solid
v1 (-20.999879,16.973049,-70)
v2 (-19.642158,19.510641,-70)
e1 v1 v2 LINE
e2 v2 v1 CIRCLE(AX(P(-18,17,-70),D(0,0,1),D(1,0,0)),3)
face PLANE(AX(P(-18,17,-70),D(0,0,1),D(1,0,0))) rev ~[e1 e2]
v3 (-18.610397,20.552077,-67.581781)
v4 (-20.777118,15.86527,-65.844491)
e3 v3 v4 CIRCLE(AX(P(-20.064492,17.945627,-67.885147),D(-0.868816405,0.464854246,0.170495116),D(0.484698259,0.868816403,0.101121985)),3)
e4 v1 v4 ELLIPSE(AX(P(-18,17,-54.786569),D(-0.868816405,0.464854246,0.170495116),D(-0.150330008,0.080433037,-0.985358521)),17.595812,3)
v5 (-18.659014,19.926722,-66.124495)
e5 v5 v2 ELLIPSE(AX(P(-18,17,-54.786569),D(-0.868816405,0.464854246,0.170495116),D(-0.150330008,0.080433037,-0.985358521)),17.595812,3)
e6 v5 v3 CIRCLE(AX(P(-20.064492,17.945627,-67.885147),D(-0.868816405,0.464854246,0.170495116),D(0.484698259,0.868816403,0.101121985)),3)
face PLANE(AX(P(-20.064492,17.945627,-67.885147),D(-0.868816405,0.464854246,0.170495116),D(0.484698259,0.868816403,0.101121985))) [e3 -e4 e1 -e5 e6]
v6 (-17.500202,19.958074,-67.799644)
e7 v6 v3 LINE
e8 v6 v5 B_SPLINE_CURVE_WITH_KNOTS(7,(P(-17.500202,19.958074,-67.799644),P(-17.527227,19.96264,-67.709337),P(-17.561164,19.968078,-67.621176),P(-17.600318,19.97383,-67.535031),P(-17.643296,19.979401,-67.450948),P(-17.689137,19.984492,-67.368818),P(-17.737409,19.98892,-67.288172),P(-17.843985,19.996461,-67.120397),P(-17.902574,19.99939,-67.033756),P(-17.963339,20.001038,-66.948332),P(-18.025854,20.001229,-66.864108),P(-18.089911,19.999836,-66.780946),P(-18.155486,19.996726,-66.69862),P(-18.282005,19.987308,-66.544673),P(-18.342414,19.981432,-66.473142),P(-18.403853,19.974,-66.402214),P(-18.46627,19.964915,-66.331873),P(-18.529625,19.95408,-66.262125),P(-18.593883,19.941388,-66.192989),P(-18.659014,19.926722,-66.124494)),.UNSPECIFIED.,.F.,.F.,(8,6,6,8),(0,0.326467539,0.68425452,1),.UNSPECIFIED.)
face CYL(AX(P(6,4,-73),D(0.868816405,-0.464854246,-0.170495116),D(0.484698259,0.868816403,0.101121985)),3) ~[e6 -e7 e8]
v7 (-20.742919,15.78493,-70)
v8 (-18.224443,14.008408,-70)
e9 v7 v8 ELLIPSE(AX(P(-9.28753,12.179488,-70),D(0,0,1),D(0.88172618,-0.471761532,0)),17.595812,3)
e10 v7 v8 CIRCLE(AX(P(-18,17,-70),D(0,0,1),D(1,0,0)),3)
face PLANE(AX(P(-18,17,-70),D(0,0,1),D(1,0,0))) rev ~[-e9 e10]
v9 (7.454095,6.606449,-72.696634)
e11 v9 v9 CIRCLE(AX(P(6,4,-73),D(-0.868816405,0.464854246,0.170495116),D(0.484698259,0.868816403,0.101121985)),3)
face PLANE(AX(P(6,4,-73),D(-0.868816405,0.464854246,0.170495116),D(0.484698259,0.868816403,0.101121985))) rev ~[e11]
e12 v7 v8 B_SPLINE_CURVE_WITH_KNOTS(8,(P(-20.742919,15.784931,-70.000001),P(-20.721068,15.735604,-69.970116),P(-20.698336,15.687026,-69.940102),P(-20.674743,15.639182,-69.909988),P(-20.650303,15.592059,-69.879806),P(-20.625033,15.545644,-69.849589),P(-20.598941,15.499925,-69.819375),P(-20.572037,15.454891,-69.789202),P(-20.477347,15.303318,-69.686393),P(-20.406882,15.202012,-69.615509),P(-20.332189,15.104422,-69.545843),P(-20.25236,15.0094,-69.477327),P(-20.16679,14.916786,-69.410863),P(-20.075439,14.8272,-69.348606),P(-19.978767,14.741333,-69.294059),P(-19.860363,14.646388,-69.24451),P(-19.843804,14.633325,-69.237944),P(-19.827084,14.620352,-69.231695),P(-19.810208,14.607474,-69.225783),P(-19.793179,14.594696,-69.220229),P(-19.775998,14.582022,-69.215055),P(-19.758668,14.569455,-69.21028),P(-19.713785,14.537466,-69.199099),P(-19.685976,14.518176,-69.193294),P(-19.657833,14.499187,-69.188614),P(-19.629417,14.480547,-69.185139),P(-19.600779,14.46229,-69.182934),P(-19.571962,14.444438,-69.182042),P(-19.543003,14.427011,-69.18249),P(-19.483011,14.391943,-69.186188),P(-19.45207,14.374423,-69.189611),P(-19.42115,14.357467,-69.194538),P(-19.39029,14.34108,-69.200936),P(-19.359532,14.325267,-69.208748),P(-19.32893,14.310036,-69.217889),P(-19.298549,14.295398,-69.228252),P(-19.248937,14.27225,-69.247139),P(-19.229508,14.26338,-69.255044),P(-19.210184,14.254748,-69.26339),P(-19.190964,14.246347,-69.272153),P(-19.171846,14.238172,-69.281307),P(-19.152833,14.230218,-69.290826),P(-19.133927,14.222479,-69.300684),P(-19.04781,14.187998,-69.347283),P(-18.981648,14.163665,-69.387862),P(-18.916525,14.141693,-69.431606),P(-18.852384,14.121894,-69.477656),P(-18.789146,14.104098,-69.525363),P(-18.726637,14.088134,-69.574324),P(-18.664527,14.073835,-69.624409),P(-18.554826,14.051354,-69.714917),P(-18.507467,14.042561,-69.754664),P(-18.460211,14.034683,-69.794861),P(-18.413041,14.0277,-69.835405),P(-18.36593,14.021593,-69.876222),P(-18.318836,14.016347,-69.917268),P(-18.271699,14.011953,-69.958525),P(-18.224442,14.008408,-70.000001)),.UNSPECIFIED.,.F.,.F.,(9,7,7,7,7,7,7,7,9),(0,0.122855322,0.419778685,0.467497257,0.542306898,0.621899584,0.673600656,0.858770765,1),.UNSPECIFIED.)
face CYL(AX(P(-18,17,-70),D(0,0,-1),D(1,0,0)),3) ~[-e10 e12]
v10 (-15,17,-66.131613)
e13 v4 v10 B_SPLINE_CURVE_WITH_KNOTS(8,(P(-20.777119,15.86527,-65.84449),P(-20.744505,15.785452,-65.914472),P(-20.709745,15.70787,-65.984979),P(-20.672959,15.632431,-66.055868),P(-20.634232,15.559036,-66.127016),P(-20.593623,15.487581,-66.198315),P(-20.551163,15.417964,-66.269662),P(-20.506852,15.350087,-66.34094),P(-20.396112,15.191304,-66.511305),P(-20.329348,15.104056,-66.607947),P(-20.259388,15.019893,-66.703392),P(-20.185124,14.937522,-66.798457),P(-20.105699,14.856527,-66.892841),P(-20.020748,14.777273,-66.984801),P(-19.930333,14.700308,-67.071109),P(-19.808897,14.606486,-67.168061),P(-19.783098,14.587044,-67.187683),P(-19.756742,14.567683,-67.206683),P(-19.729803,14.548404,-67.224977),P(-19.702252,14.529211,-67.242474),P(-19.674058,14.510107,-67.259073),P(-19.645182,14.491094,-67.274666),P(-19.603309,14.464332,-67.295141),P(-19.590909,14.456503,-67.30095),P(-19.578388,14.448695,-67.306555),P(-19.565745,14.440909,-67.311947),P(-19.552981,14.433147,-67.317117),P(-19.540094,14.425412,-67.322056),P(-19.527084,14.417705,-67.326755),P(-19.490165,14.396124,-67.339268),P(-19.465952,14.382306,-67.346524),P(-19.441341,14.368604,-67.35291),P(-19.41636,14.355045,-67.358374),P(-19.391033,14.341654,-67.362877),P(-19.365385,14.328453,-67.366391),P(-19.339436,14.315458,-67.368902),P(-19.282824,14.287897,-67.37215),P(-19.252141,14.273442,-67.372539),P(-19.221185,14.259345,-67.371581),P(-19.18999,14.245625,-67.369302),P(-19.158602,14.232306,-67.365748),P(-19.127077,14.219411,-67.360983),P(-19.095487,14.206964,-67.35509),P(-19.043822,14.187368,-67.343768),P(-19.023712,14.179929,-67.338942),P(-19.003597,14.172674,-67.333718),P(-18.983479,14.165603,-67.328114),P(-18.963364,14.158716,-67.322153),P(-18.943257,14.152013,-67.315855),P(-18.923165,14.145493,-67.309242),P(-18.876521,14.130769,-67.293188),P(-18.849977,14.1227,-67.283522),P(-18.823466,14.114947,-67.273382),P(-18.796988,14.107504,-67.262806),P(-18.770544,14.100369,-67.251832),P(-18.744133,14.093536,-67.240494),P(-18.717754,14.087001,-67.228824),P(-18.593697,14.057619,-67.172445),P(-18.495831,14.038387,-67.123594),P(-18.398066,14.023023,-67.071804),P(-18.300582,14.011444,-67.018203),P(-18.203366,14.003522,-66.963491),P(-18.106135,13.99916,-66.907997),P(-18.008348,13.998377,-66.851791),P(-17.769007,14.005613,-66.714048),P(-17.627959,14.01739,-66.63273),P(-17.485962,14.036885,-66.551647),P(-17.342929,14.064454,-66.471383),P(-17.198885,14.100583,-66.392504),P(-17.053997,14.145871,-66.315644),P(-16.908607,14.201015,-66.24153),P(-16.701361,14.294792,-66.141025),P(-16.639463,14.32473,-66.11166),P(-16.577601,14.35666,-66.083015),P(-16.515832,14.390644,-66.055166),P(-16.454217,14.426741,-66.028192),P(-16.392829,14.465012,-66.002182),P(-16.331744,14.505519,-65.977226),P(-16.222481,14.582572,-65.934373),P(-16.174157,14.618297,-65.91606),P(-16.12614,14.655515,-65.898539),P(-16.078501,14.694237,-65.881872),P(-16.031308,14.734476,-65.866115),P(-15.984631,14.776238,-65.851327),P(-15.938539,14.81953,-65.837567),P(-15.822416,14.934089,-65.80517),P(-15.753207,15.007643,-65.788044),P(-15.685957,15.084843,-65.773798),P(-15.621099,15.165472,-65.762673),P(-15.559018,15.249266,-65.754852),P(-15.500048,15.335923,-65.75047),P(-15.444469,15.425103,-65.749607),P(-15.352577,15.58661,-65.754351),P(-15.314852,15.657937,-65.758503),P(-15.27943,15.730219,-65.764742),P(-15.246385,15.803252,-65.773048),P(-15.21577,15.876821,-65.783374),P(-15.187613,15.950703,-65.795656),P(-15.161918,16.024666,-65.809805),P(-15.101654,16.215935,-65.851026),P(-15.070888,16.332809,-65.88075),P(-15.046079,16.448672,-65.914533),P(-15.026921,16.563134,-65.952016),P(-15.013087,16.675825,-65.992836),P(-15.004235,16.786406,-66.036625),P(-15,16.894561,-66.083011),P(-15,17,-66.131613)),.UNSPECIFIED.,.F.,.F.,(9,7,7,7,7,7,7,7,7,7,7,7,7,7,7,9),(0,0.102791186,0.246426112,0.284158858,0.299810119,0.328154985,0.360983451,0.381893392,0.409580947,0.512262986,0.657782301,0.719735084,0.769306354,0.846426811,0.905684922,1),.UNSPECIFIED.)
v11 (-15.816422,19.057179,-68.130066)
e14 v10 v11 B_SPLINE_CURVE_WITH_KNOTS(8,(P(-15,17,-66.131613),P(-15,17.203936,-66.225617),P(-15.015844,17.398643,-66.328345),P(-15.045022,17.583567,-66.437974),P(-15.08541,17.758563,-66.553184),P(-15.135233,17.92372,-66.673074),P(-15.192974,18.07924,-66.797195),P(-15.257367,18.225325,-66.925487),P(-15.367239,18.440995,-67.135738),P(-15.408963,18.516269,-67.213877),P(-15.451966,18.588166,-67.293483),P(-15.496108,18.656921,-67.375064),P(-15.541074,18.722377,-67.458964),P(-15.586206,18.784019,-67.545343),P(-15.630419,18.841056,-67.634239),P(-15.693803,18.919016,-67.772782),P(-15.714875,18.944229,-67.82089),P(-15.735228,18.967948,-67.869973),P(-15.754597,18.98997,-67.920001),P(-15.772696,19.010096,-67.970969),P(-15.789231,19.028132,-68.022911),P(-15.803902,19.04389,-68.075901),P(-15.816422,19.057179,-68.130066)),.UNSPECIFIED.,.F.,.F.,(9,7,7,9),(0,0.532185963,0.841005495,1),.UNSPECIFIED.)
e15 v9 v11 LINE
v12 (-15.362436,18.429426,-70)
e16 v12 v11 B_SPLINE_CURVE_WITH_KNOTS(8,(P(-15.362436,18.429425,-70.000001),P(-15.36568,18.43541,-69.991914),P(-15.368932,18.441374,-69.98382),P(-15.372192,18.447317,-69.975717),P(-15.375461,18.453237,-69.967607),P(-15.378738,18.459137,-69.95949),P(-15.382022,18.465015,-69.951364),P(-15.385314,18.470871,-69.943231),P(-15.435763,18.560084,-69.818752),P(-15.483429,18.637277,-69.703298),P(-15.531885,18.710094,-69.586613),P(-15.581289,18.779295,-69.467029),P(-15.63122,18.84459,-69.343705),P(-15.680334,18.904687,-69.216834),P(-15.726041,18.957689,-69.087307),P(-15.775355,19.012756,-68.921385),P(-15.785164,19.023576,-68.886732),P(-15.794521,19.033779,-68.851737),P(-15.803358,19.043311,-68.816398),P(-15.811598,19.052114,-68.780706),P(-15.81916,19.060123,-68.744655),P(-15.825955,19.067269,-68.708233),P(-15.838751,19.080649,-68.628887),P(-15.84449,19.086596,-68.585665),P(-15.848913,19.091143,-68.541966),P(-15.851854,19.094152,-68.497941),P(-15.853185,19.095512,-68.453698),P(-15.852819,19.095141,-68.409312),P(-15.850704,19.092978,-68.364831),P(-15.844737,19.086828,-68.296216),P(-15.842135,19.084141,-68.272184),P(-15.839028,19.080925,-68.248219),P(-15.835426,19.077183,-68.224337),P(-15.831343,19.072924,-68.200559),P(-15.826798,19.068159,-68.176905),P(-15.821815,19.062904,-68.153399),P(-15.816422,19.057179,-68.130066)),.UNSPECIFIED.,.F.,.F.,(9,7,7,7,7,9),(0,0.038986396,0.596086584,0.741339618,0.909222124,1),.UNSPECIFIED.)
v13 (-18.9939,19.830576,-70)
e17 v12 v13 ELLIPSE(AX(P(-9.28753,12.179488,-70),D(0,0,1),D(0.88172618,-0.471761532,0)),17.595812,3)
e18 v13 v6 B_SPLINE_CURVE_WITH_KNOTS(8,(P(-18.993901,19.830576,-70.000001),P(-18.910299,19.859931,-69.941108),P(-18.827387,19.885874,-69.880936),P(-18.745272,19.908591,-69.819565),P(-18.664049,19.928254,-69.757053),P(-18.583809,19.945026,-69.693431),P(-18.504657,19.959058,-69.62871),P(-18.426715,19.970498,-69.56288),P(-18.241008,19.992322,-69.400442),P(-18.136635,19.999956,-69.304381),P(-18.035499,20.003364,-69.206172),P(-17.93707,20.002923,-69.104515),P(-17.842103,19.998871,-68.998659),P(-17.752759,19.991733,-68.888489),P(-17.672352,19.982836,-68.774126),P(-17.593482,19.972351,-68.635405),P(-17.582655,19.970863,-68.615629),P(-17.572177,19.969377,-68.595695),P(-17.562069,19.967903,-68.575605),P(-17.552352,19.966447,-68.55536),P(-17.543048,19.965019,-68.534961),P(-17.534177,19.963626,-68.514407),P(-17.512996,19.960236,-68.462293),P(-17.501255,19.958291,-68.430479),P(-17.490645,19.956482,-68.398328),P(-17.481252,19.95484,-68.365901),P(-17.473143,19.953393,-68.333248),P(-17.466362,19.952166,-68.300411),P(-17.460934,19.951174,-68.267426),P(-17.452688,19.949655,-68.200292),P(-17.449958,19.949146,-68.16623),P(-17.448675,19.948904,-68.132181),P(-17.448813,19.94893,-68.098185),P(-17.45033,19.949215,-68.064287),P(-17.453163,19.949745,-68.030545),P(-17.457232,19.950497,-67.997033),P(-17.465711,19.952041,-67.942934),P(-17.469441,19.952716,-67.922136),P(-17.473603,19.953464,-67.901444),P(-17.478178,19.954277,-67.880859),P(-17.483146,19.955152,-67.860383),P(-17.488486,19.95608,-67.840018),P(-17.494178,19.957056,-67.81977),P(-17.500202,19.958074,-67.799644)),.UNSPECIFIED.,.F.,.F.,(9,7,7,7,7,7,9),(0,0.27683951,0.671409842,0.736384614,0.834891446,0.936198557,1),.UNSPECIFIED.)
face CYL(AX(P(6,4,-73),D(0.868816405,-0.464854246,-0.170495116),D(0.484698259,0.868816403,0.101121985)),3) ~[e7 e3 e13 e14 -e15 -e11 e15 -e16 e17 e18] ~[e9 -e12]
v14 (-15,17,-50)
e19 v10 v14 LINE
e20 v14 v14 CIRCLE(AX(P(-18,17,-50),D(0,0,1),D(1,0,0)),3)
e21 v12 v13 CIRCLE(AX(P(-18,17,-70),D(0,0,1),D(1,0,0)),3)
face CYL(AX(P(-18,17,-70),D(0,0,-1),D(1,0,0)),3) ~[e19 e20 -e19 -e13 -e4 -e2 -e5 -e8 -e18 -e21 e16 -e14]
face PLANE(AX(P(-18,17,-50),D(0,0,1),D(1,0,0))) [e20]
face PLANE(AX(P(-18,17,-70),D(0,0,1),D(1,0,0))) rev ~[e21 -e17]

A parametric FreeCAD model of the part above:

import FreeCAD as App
import Part
import Sketcher

doc = App.newDocument("Part")
params = doc.addObject("Spreadsheet::Sheet", "Params")
for row, (alias, value) in enumerate([
    ("sketch1_diameter", "6 mm"),
    ("pad1_length", "20 mm"),
    ("sketch2_diameter", "6 mm"),
    ("pad2_length", "30 mm"),
], start=1):
    params.set(f"A{row}", alias)
    params.set(f"B{row}", "=" + value)
    params.setAlias(f"B{row}", alias)

body = doc.addObject("PartDesign::Body", "Body")

# Sketch on XY plane
sketch1 = doc.addObject("Sketcher::SketchObject", "Sketch")
body.addObject(sketch1)
sketch1.AttachmentSupport = (doc.XY_Plane, [""])
sketch1.MapMode = "FlatFace"
sketch1.AttachmentOffset = App.Placement(App.Vector(0, 0, -70), App.Rotation())
sketch1.addGeometry(Part.Circle(App.Vector(-18, 17, 0), App.Vector(0, 0, 1), 3), False)
sketch1.addConstraint(Sketcher.Constraint("Diameter", 0, 6.0))
sketch1.addConstraint(Sketcher.Constraint("DistanceX", 0, 3, -1, 1, 18.0))
sketch1.addConstraint(Sketcher.Constraint("DistanceY", -1, 1, 0, 3, 17.0))
sketch1.setExpression("Constraints[0]", "Params.sketch1_diameter")
pad1 = doc.addObject("PartDesign::Pad", "Pad")
body.addObject(pad1)
pad1.Profile = sketch1
pad1.setExpression("Length", "Params.pad1_length")
body2 = doc.addObject("PartDesign::Body", "Body001")

# Sketch on XY plane
sketch2 = doc.addObject("Sketcher::SketchObject", "Sketch001")
body2.addObject(sketch2)
sketch2.AttachmentSupport = (doc.getObject("XY_Plane001"), [""])
sketch2.MapMode = "FlatFace"
sketch2.addGeometry(Part.Circle(App.Vector(0, 0, 0), App.Vector(0, 0, 1), 3), False)
sketch2.addConstraint(Sketcher.Constraint("Coincident", 0, 3, -1, 1))
sketch2.addConstraint(Sketcher.Constraint("Diameter", 0, 6.0))
sketch2.setExpression("Constraints[1]", "Params.sketch2_diameter")
pad2 = doc.addObject("PartDesign::Pad", "Pad001")
body2.addObject(pad2)
pad2.Profile = sketch2
pad2.setExpression("Length", "Params.pad2_length")
body3 = doc.addObject("PartDesign::Body", "Body002")
doc.recompute()

body2.Placement = App.Placement(App.Vector(0, 0, 0), App.Rotation(App.Vector(1, 0, 0), 279.867691))
boolean = doc.addObject("PartDesign::Boolean", "Boolean")
body3.addObject(boolean)
boolean.Type = "Fuse"
boolean.addObjects([body2])
body4 = doc.addObject("PartDesign::Body", "Body003")
doc.recompute()

body3.Placement = App.Placement(App.Vector(0, 0, 0), App.Rotation(App.Vector(0, 1, 0), 354.196217))
boolean2 = doc.addObject("PartDesign::Boolean", "Boolean001")
body4.addObject(boolean2)
boolean2.Type = "Fuse"
boolean2.addObjects([body3])
body5 = doc.addObject("PartDesign::Body", "Body004")
doc.recompute()

body4.Placement = App.Placement(App.Vector(6, 4, -73), App.Rotation(App.Vector(0, 0, 1), 60.843577))
boolean3 = doc.addObject("PartDesign::Boolean", "Boolean002")
body5.addObject(boolean3)
boolean3.Type = "Fuse"
boolean3.addObjects([body4])
doc.recompute()

boolean4 = doc.addObject("PartDesign::Boolean", "Boolean003")
body5.addObject(boolean4)
boolean4.Type = "Fuse"
boolean4.addObjects([body])

doc.recompute()
